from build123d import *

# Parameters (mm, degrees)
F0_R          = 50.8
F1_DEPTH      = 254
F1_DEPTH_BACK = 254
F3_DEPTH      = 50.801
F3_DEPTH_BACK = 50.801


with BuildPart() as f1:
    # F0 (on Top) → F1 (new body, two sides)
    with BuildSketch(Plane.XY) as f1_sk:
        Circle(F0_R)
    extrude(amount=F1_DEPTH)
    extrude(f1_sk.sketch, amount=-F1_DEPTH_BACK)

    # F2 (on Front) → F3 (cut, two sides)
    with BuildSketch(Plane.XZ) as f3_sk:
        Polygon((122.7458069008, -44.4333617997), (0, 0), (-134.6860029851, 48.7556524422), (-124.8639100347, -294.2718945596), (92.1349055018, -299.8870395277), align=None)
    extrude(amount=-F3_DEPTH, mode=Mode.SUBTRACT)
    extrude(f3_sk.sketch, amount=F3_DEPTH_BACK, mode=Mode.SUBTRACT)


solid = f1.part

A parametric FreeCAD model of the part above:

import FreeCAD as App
import Part
import Sketcher

V = App.Vector
Q = App.Units.Quantity

doc = App.newDocument("Part")
body = doc.addObject("PartDesign::Body", "Body")

sketch1 = doc.addObject("Sketcher::SketchObject", "Sketch")
body.addObject(sketch1)
sketch1.AttachmentSupport = (doc.XY_Plane, [""])
sketch1.MapMode = "FlatFace"
sketch1.addGeometry(Part.Circle(V(0, 0, 0), V(0, 0, 1), 50.8), False)
sketch1.addConstraint(Sketcher.Constraint("Coincident", 0, 3, -1, 1))
sketch1.addConstraint(Sketcher.Constraint("Diameter", 0, Q("4 in")))
pad1 = doc.addObject("PartDesign::Pad", "Pad")
body.addObject(pad1)
pad1.Profile = sketch1
pad1.Type = "TwoLengths"
pad1.Length = Q("10 in")
pad1.Length2 = Q("10 in")

sketch2 = doc.addObject("Sketcher::SketchObject", "Sketch001")
body.addObject(sketch2)
sketch2.AttachmentSupport = (doc.XZ_Plane, [""])
sketch2.MapMode = "FlatFace"
sketch2.addGeometry(Part.LineSegment(V(122.745807, -44.433362, 0), V(-134.686003, 48.755652, 0)), False)
sketch2.addGeometry(Part.LineSegment(V(-134.686003, 48.755652, 0), V(-124.86391, -294.271895, 0)), False)
sketch2.addGeometry(Part.LineSegment(V(-124.86391, -294.271895, 0), V(92.134906, -299.88704, 0)), False)
sketch2.addGeometry(Part.LineSegment(V(92.134906, -299.88704, 0), V(122.745807, -44.433362, 0)), False)
sketch2.addConstraint(Sketcher.Constraint("Coincident", 0, 2, 1, 1))
sketch2.addConstraint(Sketcher.Constraint("Coincident", 1, 2, 2, 1))
sketch2.addConstraint(Sketcher.Constraint("Coincident", 2, 2, 3, 1))
sketch2.addConstraint(Sketcher.Constraint("Coincident", 3, 2, 0, 1))
sketch2.addConstraint(Sketcher.Constraint("Angle", 0, Q("160.1 deg")))
sketch2.addConstraint(Sketcher.Constraint("DistanceX", 2, 2, 3, 2, Q("30.610901 mm")))
sketch2.addConstraint(Sketcher.Constraint("Distance", 0, Q("273.779709 mm")))
sketch2.addConstraint(Sketcher.Constraint("Distance", 1, Q("343.168139 mm")))
sketch2.addConstraint(Sketcher.Constraint("DistanceX", 1, 2, -1, 1, Q("124.86391 mm")))
sketch2.addConstraint(Sketcher.Constraint("DistanceY", 2, 2, -1, 1, Q("299.88704 mm")))
sketch2.addConstraint(Sketcher.Constraint("DistanceY", 3, 2, -1, 1, Q("44.433362 mm")))
sketch2.addConstraint(Sketcher.Constraint("Distance", 2, Q("217.071453 mm")))
pocket1 = doc.addObject("PartDesign::Pocket", "Pocket")
body.addObject(pocket1)
pocket1.Profile = sketch2
pocket1.Type = "ThroughAll"
pocket1.Midplane = True

doc.recompute()
